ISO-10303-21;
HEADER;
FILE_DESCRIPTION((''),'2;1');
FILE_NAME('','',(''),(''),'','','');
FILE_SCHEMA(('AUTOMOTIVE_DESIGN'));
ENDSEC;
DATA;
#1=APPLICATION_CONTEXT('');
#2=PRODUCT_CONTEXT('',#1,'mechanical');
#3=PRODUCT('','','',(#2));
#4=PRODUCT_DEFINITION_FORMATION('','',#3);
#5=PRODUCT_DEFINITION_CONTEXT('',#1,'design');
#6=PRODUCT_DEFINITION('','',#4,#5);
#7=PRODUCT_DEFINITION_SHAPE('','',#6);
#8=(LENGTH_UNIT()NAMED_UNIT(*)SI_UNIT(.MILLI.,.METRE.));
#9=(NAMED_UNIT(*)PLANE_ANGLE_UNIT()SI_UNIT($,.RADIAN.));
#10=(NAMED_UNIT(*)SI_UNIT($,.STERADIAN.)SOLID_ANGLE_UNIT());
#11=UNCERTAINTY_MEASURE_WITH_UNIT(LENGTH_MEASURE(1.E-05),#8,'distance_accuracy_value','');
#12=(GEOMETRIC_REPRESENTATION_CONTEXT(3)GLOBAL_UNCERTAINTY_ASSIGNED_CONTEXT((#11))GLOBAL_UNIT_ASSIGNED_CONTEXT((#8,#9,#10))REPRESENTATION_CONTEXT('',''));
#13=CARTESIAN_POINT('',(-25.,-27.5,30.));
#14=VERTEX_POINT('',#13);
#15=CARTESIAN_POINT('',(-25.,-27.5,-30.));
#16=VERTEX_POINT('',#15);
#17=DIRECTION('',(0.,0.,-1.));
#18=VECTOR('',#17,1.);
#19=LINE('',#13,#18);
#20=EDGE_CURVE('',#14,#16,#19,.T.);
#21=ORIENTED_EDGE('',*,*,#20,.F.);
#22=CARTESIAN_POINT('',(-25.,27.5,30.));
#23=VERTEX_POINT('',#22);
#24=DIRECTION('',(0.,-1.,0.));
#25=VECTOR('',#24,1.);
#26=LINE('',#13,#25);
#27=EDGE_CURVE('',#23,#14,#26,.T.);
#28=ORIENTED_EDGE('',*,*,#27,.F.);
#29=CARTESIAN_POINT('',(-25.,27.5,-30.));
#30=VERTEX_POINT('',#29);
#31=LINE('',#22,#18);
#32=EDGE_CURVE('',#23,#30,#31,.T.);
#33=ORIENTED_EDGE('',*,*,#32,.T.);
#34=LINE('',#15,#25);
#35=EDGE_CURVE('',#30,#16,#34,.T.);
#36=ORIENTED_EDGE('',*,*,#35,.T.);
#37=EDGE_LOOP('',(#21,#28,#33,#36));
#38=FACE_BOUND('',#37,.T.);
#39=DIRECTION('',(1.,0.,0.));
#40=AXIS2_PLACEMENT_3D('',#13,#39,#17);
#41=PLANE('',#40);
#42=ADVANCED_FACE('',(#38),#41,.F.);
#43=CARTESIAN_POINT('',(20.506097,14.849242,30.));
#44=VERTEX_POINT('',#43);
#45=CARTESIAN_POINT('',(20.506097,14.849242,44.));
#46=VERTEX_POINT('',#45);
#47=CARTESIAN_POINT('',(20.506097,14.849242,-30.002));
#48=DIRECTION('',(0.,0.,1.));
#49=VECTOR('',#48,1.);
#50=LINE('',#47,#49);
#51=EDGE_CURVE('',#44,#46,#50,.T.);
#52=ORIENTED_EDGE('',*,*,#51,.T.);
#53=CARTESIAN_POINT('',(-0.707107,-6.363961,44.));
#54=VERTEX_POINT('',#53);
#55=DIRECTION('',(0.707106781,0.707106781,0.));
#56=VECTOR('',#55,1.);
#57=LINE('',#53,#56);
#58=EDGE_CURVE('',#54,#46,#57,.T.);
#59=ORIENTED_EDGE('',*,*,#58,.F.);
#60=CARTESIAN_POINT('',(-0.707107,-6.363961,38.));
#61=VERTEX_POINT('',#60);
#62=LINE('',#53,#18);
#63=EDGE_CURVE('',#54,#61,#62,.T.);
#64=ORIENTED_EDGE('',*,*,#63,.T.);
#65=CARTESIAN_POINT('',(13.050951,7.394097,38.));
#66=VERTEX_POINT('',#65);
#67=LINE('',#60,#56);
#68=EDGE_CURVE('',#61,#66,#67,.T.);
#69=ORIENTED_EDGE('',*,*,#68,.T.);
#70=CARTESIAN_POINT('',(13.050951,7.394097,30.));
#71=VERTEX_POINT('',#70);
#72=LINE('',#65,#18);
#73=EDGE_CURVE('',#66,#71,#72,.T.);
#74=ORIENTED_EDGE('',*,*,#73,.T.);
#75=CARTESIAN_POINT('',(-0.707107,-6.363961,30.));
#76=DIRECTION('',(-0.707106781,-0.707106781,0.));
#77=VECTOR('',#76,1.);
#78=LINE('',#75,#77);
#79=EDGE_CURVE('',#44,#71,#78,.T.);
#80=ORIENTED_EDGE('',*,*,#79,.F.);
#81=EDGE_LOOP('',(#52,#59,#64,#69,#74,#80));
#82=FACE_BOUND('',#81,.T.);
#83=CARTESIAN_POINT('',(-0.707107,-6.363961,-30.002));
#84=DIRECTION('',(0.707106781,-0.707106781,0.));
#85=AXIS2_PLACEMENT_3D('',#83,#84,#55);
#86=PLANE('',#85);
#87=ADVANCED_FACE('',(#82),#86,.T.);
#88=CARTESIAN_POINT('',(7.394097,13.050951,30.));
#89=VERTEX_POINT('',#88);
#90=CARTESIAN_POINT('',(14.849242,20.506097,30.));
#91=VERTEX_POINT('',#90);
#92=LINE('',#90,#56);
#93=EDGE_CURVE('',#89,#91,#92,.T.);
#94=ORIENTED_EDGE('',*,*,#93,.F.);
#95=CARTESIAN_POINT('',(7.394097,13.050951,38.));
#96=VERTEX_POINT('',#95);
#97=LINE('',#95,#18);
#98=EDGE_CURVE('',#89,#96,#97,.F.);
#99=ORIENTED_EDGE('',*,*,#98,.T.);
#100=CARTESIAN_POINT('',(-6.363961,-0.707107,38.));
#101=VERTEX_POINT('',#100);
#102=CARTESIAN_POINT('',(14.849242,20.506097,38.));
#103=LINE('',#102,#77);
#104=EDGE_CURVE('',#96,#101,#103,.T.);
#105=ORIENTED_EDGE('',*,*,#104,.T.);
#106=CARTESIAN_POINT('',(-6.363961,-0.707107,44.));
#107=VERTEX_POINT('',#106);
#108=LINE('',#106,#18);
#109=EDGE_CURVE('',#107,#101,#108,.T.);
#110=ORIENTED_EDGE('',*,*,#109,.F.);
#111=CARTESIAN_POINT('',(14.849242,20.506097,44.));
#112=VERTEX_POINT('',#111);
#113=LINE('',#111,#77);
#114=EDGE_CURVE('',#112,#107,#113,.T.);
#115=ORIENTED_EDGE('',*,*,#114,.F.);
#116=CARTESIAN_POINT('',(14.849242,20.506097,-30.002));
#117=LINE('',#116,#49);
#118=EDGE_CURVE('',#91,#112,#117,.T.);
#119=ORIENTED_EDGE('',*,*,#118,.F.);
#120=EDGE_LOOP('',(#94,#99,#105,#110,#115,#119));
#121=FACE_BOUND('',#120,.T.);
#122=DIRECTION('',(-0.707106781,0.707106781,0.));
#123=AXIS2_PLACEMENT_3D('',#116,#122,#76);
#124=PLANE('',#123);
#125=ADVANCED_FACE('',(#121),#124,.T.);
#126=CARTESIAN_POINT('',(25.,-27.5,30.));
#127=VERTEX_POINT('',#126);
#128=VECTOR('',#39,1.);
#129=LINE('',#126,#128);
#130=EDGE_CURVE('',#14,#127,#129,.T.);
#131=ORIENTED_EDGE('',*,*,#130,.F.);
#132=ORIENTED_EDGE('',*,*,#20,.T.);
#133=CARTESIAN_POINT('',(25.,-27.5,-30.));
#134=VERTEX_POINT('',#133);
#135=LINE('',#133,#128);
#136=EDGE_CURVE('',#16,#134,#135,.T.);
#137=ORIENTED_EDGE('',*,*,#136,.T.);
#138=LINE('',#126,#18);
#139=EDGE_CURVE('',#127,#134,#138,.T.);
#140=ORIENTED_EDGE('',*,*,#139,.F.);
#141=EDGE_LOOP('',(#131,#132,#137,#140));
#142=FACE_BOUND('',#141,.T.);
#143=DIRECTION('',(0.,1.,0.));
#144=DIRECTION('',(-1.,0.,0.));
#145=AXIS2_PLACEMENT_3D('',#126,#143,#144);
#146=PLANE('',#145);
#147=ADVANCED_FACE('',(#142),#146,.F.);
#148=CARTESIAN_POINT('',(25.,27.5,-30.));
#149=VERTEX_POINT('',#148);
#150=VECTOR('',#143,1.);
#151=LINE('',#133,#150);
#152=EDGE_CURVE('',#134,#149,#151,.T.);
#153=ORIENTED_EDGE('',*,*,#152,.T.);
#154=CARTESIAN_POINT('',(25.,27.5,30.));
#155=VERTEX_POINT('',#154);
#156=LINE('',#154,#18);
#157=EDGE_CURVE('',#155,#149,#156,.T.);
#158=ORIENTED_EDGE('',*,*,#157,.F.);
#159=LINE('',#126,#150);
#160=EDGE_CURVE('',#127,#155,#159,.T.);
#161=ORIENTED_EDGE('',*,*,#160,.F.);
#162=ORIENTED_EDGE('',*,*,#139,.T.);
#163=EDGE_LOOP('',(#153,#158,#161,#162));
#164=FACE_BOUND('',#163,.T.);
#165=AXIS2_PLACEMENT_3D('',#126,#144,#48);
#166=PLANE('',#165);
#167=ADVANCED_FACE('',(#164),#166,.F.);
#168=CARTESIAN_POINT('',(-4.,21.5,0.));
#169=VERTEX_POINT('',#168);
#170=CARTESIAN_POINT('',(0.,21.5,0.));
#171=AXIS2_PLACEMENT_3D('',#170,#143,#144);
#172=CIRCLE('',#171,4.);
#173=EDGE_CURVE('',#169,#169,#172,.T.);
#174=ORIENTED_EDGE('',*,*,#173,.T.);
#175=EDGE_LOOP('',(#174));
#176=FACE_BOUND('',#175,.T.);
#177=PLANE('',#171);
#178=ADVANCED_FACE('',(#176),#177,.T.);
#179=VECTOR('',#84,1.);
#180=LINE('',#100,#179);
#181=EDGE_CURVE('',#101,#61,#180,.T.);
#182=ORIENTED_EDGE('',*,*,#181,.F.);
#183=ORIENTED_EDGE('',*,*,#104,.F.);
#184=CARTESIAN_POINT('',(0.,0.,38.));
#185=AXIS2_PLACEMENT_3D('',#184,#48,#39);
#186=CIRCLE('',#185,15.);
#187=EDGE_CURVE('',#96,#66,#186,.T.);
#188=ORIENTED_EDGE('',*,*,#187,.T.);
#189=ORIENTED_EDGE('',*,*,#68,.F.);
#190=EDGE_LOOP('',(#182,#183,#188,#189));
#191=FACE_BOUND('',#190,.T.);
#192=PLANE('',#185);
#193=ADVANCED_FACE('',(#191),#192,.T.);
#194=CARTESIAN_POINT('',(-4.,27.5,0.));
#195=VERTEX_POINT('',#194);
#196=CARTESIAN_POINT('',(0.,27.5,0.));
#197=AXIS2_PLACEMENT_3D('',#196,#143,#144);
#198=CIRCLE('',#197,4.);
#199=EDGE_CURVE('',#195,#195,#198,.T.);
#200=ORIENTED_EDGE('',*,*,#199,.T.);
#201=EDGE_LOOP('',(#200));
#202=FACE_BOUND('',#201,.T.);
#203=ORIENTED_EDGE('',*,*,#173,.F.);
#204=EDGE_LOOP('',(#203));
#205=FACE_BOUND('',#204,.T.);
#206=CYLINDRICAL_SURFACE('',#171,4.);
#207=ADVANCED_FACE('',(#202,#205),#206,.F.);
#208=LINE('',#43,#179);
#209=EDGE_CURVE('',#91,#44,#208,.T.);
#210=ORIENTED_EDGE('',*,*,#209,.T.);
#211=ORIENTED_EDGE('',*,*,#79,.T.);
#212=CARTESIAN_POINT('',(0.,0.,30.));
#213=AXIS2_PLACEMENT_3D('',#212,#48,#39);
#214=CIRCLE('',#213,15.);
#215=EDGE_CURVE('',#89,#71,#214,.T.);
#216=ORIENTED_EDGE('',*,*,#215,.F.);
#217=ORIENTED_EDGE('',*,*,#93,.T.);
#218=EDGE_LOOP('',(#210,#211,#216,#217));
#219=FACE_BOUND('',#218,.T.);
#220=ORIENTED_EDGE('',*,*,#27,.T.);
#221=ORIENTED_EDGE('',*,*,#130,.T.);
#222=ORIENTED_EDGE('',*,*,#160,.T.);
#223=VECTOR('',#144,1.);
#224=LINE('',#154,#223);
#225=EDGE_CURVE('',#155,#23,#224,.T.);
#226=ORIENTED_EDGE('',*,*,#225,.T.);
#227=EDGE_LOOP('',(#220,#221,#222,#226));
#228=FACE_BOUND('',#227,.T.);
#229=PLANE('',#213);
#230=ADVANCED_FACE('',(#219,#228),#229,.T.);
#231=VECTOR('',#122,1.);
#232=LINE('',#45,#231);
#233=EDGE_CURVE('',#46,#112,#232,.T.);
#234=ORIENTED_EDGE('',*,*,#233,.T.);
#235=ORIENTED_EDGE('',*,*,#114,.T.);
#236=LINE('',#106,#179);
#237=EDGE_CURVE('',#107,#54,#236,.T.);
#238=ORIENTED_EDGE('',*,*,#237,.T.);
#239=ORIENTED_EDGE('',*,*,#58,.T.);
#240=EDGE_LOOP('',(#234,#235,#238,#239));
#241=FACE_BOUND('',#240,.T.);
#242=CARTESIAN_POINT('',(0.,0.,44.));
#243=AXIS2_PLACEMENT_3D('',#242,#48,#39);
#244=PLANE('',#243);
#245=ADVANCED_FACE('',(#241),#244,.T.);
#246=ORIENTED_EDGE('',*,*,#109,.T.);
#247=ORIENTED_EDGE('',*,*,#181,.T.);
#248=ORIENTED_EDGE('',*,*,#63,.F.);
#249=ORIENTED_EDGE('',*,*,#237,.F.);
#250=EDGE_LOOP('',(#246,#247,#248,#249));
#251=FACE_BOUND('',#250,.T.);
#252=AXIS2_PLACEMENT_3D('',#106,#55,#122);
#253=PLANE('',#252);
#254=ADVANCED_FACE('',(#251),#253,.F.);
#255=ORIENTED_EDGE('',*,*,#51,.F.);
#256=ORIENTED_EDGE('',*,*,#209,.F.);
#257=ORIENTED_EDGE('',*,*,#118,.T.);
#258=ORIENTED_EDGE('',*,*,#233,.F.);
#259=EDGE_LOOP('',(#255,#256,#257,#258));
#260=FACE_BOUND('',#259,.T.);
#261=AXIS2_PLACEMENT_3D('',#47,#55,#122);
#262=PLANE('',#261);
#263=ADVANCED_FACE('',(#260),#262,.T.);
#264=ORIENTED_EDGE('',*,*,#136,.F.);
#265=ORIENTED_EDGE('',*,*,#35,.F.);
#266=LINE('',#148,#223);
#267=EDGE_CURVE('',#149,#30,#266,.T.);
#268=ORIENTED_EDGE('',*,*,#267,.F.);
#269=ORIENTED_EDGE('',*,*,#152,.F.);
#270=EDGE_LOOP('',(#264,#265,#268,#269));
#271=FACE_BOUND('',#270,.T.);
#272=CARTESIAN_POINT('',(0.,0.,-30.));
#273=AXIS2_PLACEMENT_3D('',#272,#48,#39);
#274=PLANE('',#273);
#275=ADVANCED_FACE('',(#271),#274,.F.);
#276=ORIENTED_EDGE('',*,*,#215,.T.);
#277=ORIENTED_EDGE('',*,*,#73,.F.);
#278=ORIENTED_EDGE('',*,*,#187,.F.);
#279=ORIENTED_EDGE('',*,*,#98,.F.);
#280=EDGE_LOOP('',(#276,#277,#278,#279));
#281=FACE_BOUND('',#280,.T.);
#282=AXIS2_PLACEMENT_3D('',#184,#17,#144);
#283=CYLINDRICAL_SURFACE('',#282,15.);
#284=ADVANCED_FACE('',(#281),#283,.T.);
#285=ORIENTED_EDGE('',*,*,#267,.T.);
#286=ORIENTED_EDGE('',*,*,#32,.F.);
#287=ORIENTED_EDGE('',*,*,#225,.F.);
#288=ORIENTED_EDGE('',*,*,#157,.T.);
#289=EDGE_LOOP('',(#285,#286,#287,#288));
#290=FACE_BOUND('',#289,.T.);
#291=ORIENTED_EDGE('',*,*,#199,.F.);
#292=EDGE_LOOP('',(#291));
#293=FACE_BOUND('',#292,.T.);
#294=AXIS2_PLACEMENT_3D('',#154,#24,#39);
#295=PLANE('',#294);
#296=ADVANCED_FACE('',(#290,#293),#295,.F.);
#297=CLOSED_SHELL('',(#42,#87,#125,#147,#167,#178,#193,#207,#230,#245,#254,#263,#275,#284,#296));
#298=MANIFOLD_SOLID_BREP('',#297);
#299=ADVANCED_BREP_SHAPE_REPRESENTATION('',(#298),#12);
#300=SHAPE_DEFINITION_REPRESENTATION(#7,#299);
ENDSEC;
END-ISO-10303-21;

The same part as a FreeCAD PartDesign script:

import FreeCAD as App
import Part
import Sketcher
from FreeCAD import Vector
Q = App.Units.Quantity

doc = App.newDocument("Part")
body = doc.addObject("PartDesign::Body", "Body")

# Sketch on XY plane
sketch1 = body.newObject("Sketcher::SketchObject", "Sketch")
sketch1.AttachmentSupport = (doc.getObject("XY_Plane"), [""])
sketch1.MapMode = "FlatFace"
sketch1.addGeometry([
    Part.LineSegment(Vector(-25, 28, 0), Vector(-25, -28, 0)),
    Part.LineSegment(Vector(-25, -28, 0), Vector(25, -28, 0)),
    Part.LineSegment(Vector(25, -28, 0), Vector(25, 28, 0)),
    Part.LineSegment(Vector(25, 28, 0), Vector(-25, 28, 0)),
], False)
sketch1.addConstraint([
    Sketcher.Constraint("Coincident", 0, 2, 1, 1),
    Sketcher.Constraint("Coincident", 1, 2, 2, 1),
    Sketcher.Constraint("Coincident", 2, 2, 3, 1),
    Sketcher.Constraint("Coincident", 3, 2, 0, 1),
    Sketcher.Constraint("Vertical", 0),
    Sketcher.Constraint("Horizontal", 1),
    Sketcher.Constraint("Vertical", 2),
    Sketcher.Constraint("Horizontal", 3),
    Sketcher.Constraint("Symmetric", 0, 2, 2, 2, -1, 1),
    Sketcher.Constraint("DistanceX", 1, 1, 1, 2, 50.0),
    Sketcher.Constraint("DistanceY", 0, 2, 0, 1, 55.0),
])
pad1 = body.newObject("PartDesign::Pad", "Pad")
pad1.Profile = sketch1
pad1.Length = 60
pad1.Midplane = True

# Sketch on XY plane
sketch2 = body.newObject("Sketcher::SketchObject", "Sketch001")
sketch2.AttachmentSupport = (doc.getObject("XY_Plane"), [""])
sketch2.MapMode = "FlatFace"
sketch2.AttachmentOffset = App.Placement(Vector(0, 0, 30), App.Rotation())
sketch2.addGeometry(Part.Circle(Vector(0, 0, 0), Vector(0, 0, 1), 15), False)
sketch2.addConstraint([
    Sketcher.Constraint("Coincident", 0, 3, -1, 1),
    Sketcher.Constraint("Diameter", 0, 30.0),
])
pad2 = body.newObject("PartDesign::Pad", "Pad001")
pad2.Profile = sketch2
pad2.Length = 8

# Sketch on XY plane
sketch3 = body.newObject("Sketcher::SketchObject", "Sketch002")
sketch3.AttachmentSupport = (doc.getObject("XY_Plane"), [""])
sketch3.MapMode = "FlatFace"
sketch3.AttachmentOffset = App.Placement(Vector(0, 0, 38), App.Rotation())
sketch3.addGeometry([
    Part.LineSegment(Vector(15, 21, 0), Vector(-6, -1, 0)),
    Part.LineSegment(Vector(-6, -1, 0), Vector(-1, -6, 0)),
    Part.LineSegment(Vector(-1, -6, 0), Vector(21, 15, 0)),
    Part.LineSegment(Vector(21, 15, 0), Vector(15, 21, 0)),
], False)
sketch3.addConstraint([
    Sketcher.Constraint("Coincident", 0, 2, 1, 1),
    Sketcher.Constraint("Coincident", 1, 2, 2, 1),
    Sketcher.Constraint("Coincident", 2, 2, 3, 1),
    Sketcher.Constraint("Coincident", 3, 2, 0, 1),
    Sketcher.Constraint("Perpendicular", 0, 1),
    Sketcher.Constraint("Perpendicular", 1, 2),
    Sketcher.Constraint("Perpendicular", 2, 3),
    Sketcher.Constraint("Angle", 0, Q("-135 deg")),
    Sketcher.Constraint("Distance", 0, 30.0),
    Sketcher.Constraint("Distance", 1, 8.0),
    Sketcher.Constraint("DistanceX", 0, 2, -1, 1, 6.363961),
    Sketcher.Constraint("DistanceY", 1, 2, -1, 1, 6.363961),
])
pad3 = body.newObject("PartDesign::Pad", "Pad002")
pad3.Profile = sketch3
pad3.Length = 6

# Sketch on XY plane
sketch4 = body.newObject("Sketcher::SketchObject", "Sketch003")
sketch4.AttachmentSupport = (doc.getObject("XY_Plane"), [""])
sketch4.MapMode = "FlatFace"
sketch4.AttachmentOffset = App.Placement(Vector(0, 0, 38), App.Rotation())
sketch4.addGeometry([
    Part.LineSegment(Vector(15, 21, 0), Vector(-6, -1, 0)),
    Part.LineSegment(Vector(-6, -1, 0), Vector(-1, -6, 0)),
    Part.LineSegment(Vector(-1, -6, 0), Vector(21, 15, 0)),
    Part.LineSegment(Vector(21, 15, 0), Vector(15, 21, 0)),
], False)
sketch4.addConstraint([
    Sketcher.Constraint("Coincident", 0, 2, 1, 1),
    Sketcher.Constraint("Coincident", 1, 2, 2, 1),
    Sketcher.Constraint("Coincident", 2, 2, 3, 1),
    Sketcher.Constraint("Coincident", 3, 2, 0, 1),
    Sketcher.Constraint("Perpendicular", 0, 1),
    Sketcher.Constraint("Perpendicular", 1, 2),
    Sketcher.Constraint("Perpendicular", 2, 3),
    Sketcher.Constraint("Angle", 0, Q("-135 deg")),
    Sketcher.Constraint("Distance", 0, 30.0),
    Sketcher.Constraint("Distance", 1, 8.0),
    Sketcher.Constraint("DistanceX", 0, 2, -1, 1, 6.363961),
    Sketcher.Constraint("DistanceY", 1, 2, -1, 1, 6.363961),
])
pad4 = body.newObject("PartDesign::Pad", "Pad003")
pad4.Profile = sketch4
pad4.Type = "UpToFirst"
pad4.Reversed = True

# Sketch on XZ plane
sketch5 = body.newObject("Sketcher::SketchObject", "Sketch004")
sketch5.AttachmentSupport = (doc.getObject("XZ_Plane"), [""])
sketch5.MapMode = "FlatFace"
sketch5.AttachmentOffset = App.Placement(Vector(0, 0, -27.5), App.Rotation())
sketch5.addGeometry(Part.Circle(Vector(0, 0, 0), Vector(0, 0, 1), 4), False)
sketch5.addConstraint([
    Sketcher.Constraint("Coincident", 0, 3, -1, 1),
    Sketcher.Constraint("Diameter", 0, 8.0),
])
pocket1 = body.newObject("PartDesign::Pocket", "Pocket")
pocket1.Profile = sketch5
pocket1.Length = 6
pocket1.Reversed = True

doc.recompute()
